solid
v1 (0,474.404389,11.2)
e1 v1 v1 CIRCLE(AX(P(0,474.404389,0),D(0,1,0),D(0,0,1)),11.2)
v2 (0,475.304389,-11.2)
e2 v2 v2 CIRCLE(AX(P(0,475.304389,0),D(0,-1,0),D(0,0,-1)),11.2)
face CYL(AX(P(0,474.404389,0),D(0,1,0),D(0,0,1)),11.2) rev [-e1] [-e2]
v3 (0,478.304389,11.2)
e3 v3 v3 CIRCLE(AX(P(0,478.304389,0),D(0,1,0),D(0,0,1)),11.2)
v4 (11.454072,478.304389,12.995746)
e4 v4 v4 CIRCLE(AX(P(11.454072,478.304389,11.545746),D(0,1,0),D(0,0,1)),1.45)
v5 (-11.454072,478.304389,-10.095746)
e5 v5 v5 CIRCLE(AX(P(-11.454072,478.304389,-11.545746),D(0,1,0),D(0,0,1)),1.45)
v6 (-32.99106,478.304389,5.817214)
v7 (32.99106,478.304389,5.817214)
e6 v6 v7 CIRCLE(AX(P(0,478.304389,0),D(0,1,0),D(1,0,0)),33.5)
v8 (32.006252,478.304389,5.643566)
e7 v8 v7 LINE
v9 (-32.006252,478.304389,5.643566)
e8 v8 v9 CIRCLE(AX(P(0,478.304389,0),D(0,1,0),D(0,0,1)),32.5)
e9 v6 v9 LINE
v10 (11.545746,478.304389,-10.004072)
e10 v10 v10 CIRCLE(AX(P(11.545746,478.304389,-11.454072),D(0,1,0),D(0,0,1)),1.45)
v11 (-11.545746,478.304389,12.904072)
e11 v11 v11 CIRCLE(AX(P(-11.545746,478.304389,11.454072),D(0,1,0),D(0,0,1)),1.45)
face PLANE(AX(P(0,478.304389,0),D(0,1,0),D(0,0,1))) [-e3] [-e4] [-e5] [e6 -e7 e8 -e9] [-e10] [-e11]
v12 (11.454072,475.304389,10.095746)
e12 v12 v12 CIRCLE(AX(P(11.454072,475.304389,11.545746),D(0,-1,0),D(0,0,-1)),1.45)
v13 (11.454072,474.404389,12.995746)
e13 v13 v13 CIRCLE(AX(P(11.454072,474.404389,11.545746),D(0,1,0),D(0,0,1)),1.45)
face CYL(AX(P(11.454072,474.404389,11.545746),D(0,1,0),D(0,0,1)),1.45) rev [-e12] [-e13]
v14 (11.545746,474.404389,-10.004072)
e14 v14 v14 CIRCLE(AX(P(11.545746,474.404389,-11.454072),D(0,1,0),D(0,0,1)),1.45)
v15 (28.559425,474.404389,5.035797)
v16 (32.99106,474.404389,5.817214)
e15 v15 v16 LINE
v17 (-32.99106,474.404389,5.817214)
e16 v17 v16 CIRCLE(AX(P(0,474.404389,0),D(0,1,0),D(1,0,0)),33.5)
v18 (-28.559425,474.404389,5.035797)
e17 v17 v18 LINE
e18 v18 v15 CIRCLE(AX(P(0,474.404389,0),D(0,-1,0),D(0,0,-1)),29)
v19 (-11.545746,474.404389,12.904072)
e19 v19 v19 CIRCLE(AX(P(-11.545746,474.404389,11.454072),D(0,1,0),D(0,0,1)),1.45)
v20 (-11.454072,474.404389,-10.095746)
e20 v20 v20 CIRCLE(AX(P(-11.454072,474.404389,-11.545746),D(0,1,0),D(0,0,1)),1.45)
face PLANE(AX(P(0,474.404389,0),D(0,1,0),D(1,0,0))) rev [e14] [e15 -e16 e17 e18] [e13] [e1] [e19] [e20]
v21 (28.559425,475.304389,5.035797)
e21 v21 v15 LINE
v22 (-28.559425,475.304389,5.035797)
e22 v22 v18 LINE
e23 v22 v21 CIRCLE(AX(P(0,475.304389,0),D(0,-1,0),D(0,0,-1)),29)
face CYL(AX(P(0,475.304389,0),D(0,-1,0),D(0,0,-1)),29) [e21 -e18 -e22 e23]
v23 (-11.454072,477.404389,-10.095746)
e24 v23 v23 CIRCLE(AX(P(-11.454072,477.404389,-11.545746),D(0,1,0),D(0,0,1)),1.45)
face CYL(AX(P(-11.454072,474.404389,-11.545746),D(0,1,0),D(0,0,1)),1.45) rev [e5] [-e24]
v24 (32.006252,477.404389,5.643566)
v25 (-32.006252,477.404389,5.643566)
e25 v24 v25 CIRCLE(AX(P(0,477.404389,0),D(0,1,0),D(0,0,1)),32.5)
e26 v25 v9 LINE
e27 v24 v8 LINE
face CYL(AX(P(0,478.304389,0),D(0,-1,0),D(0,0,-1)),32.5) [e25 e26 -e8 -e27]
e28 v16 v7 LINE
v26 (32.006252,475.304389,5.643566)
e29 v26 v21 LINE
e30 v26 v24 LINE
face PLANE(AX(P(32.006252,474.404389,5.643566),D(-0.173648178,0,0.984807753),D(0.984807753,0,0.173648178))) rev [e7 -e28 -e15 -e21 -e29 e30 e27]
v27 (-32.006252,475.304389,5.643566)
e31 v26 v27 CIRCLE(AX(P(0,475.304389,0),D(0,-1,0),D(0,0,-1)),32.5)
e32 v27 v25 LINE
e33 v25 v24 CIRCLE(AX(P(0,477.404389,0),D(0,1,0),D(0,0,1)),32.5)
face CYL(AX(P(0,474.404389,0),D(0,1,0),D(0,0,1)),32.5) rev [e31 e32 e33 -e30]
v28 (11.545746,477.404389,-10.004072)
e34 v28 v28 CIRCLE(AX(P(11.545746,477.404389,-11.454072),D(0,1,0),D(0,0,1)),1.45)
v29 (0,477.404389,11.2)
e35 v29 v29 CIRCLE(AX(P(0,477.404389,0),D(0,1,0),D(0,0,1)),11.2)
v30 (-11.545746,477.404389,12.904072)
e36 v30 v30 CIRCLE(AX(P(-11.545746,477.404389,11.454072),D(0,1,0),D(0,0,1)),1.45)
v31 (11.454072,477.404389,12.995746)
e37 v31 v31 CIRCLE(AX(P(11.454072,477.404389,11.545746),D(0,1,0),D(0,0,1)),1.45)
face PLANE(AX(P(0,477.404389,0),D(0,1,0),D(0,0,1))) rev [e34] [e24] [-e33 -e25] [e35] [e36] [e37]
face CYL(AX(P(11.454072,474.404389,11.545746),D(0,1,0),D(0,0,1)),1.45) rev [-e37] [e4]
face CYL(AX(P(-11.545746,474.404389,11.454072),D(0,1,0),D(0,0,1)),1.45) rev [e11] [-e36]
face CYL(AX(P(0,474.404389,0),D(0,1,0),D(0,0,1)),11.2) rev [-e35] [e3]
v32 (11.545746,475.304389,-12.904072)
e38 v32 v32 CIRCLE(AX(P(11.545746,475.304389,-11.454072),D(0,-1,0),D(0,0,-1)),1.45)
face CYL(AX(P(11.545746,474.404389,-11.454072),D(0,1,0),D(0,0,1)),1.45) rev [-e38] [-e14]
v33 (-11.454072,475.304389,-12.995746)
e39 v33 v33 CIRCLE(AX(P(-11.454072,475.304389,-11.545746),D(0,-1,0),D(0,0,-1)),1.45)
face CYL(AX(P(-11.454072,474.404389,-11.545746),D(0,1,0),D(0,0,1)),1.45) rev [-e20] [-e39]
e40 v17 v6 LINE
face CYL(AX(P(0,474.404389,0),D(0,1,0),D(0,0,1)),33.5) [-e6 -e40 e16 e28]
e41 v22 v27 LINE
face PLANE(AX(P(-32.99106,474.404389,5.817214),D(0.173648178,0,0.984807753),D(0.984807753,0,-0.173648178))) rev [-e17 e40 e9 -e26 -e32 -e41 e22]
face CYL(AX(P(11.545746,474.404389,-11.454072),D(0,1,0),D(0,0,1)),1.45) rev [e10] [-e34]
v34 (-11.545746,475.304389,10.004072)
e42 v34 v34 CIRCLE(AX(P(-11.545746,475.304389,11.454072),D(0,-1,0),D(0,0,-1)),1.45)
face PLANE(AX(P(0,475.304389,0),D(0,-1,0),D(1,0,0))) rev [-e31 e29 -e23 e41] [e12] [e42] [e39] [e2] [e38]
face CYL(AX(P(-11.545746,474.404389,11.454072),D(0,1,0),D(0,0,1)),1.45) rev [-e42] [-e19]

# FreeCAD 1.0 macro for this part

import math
import FreeCAD as App
import Part
import Sketcher
from FreeCAD import Vector
Q = App.Units.Quantity

doc = App.newDocument("Part")
body = doc.addObject("PartDesign::Body", "Body")

# Sketch on XZ plane
sketch1 = doc.addObject("Sketcher::SketchObject", "Sketch")
body.addObject(sketch1)
sketch1.AttachmentSupport = (doc.XZ_Plane, [""])
sketch1.MapMode = "FlatFace"
sketch1.AttachmentOffset = App.Placement(Vector(0, 0, -477.404389), App.Rotation())
sketch1.addGeometry(Part.Circle(Vector(0, 0, 0), Vector(0, 0, 1), 32), False)
sketch1.addConstraint([
    Sketcher.Constraint("Coincident", 0, 3, -1, 1),
    Sketcher.Constraint("Diameter", 0, 65.0),
])
pad1 = doc.addObject("PartDesign::Pad", "Pad")
body.addObject(pad1)
pad1.Profile = sketch1
pad1.Length = 0.9
pad1.Reversed = True

# Sketch on XZ plane
sketch2 = doc.addObject("Sketcher::SketchObject", "Sketch001")
body.addObject(sketch2)
sketch2.AttachmentSupport = (doc.XZ_Plane, [""])
sketch2.MapMode = "FlatFace"
sketch2.AttachmentOffset = App.Placement(Vector(0, 0, -474.404389), App.Rotation())
sketch2.addGeometry([
    Part.ArcOfCircle(Part.Circle(Vector(0, 0, 0), Vector(0, 0, 1), 32.5), math.radians(10), math.radians(170)),
    Part.LineSegment(Vector(-32, 5.6, 0), Vector(-33, 5.8, 0)),
    Part.ArcOfCircle(Part.Circle(Vector(0, 0, 0), Vector(0, 0, 1), 33.5), math.radians(10), math.radians(170)),
    Part.LineSegment(Vector(33, 5.8, 0), Vector(32, 5.6, 0)),
], False)
sketch2.addConstraint([
    Sketcher.Constraint("Coincident", 0, 2, 1, 1),
    Sketcher.Constraint("Coincident", 1, 2, 2, 2),
    Sketcher.Constraint("Coincident", 2, 1, 3, 1),
    Sketcher.Constraint("Coincident", 3, 2, 0, 1),
    Sketcher.Constraint("Coincident", 0, 3, -1, 1),
    Sketcher.Constraint("Coincident", 2, 3, -1, 1),
    Sketcher.Constraint("Horizontal", 1, 2, 2, 1),
    Sketcher.Constraint("Horizontal", 0, 2, 3, 2),
    Sketcher.Constraint("Radius", 0, 32.5),
    Sketcher.Constraint("Radius", 2, 33.5),
    Sketcher.Constraint("Angle", 1, Q("170 deg")),
    Sketcher.Constraint("DistanceX", 0, 2, -1, 1, 32.006252),
])
pad2 = doc.addObject("PartDesign::Pad", "Pad001")
body.addObject(pad2)
pad2.Profile = sketch2
pad2.Length = 3.9
pad2.Reversed = True
body2 = doc.addObject("PartDesign::Body", "Body001")

# Sketch on XZ plane
sketch3 = doc.addObject("Sketcher::SketchObject", "Sketch002")
body2.addObject(sketch3)
sketch3.AttachmentSupport = (doc.getObject("XZ_Plane001"), [""])
sketch3.MapMode = "FlatFace"
sketch3.AttachmentOffset = App.Placement(Vector(0, 0, -474.404389), App.Rotation())
sketch3.addGeometry(Part.Circle(Vector(0, 0, 0), Vector(0, 0, 1), 29), False)
sketch3.addConstraint([
    Sketcher.Constraint("Coincident", 0, 3, -1, 1),
    Sketcher.Constraint("Diameter", 0, 58.0),
])
pad3 = doc.addObject("PartDesign::Pad", "Pad002")
body2.addObject(pad3)
pad3.Profile = sketch3
pad3.Length = 0.9
pad3.Reversed = True
body.AllowCompound = True
doc.recompute()

boolean = doc.addObject("PartDesign::Boolean", "Boolean")
body.addObject(boolean)
boolean.Type = "Fuse"
boolean.addObjects([body2])

# Sketch on XZ plane
sketch4 = doc.addObject("Sketcher::SketchObject", "Sketch003")
body.addObject(sketch4)
sketch4.AttachmentSupport = (doc.XZ_Plane, [""])
sketch4.MapMode = "FlatFace"
sketch4.AttachmentOffset = App.Placement(Vector(0, 0, -474.404389), App.Rotation())
sketch4.addGeometry([
    Part.ArcOfCircle(Part.Circle(Vector(0, 0, 0), Vector(0, 0, 1), 32.5), math.radians(10), math.radians(170)),
    Part.LineSegment(Vector(-32, 5.6, 0), Vector(-28.6, 5, 0)),
    Part.ArcOfCircle(Part.Circle(Vector(0, 0, 0), Vector(0, 0, 1), 29), math.radians(10), math.radians(170)),
    Part.LineSegment(Vector(28.6, 5, 0), Vector(32, 5.6, 0)),
], False)
sketch4.addConstraint([
    Sketcher.Constraint("Coincident", 0, 2, 1, 1),
    Sketcher.Constraint("Coincident", 1, 2, 2, 2),
    Sketcher.Constraint("Coincident", 2, 1, 3, 1),
    Sketcher.Constraint("Coincident", 3, 2, 0, 1),
    Sketcher.Constraint("Coincident", 0, 3, -1, 1),
    Sketcher.Constraint("Coincident", 2, 3, -1, 1),
    Sketcher.Constraint("Horizontal", 1, 2, 2, 1),
    Sketcher.Constraint("Horizontal", 0, 2, 3, 2),
    Sketcher.Constraint("Radius", 2, 29.0),
    Sketcher.Constraint("Radius", 0, 32.5),
    Sketcher.Constraint("Angle", 1, Q("-10 deg")),
    Sketcher.Constraint("DistanceX", 0, 2, -1, 1, 32.006252),
])
pad4 = doc.addObject("PartDesign::Pad", "Pad003")
body.addObject(pad4)
pad4.Profile = sketch4
pad4.Length = 0.9
pad4.Reversed = True

# Sketch on XZ plane
sketch5 = doc.addObject("Sketcher::SketchObject", "Sketch004")
body.addObject(sketch5)
sketch5.AttachmentSupport = (doc.XZ_Plane, [""])
sketch5.MapMode = "FlatFace"
sketch5.AttachmentOffset = App.Placement(Vector(0, 0, -478.304389), App.Rotation())
sketch5.addGeometry([
    Part.Circle(Vector(11.5, -11.5, 0), Vector(0, 0, 1), 1.4),  # 0
    Part.Circle(Vector(11.5, 11.5, 0), Vector(0, 0, 1), 1.4),  # 1
    Part.Circle(Vector(-11.5, 11.5, 0), Vector(0, 0, 1), 1.4),  # 2
    Part.Circle(Vector(-11.5, -11.5, 0), Vector(0, 0, 1), 1.4),  # 3
    Part.Circle(Vector(0, 0, 0), Vector(0, 0, 1), 11.2),  # 4
], False)
sketch5.addConstraint([
    Sketcher.Constraint("Coincident", 4, 3, -1, 1),
    Sketcher.Constraint("Equal", 0, 1),
    Sketcher.Constraint("Equal", 1, 2),
    Sketcher.Constraint("Equal", 2, 3),
    Sketcher.Constraint("Symmetric", 0, 3, 2, 3, -1, 1),
    Sketcher.Constraint("Symmetric", 1, 3, 3, 3, -1, 1),
    Sketcher.Constraint("Diameter", 0, 2.9),
    Sketcher.Constraint("Diameter", 4, 22.4),
    Sketcher.Constraint("DistanceY", 0, 3, -1, 1, 11.454072),
    Sketcher.Constraint("DistanceX", -1, 1, 1, 3, 11.454072),
    Sketcher.Constraint("DistanceX", 2, 3, 0, 3, 23.091491),
    Sketcher.Constraint("DistanceY", 3, 3, 1, 3, 23.091491),
])
pocket1 = doc.addObject("PartDesign::Pocket", "Pocket")
body.addObject(pocket1)
pocket1.Profile = sketch5
pocket1.Length = 3.9
pocket1.Reversed = True

doc.recompute()
